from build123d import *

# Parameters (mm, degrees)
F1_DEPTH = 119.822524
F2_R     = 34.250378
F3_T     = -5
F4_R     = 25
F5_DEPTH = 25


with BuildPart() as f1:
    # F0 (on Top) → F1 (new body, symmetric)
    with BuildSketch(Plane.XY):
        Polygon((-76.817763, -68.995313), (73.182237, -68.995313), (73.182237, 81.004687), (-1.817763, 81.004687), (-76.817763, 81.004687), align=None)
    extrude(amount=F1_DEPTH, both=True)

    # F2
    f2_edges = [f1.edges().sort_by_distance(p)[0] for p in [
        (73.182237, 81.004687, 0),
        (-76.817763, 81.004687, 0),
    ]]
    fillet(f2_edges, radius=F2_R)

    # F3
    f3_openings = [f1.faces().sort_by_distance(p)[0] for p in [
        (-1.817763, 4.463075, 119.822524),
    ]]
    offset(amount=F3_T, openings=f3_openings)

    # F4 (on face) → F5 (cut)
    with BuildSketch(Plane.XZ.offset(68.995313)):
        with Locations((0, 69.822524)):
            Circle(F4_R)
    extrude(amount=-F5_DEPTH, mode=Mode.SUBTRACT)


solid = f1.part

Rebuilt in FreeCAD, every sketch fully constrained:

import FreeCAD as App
import Part
import Sketcher
Q = App.Units.Quantity


def edges_at(feature, points):
    """Names of the edges that pass closest to the given points."""
    edges = feature.Shape.Edges
    near = lambda p: min(range(len(edges)), key=lambda i: edges[i].distToShape(Part.Vertex(*p))[0])
    return sorted({f"Edge{near(p) + 1}" for p in points})


def faces_at(feature, points):
    """Names of the faces that lie closest to the given points."""
    faces = feature.Shape.Faces
    near = lambda p: min(range(len(faces)), key=lambda i: faces[i].distToShape(Part.Vertex(*p))[0])
    return sorted({f"Face{near(p) + 1}" for p in points})

doc = App.newDocument("Part")
body = doc.addObject("PartDesign::Body", "Body")

# Sketch on XY plane
sketch1 = doc.addObject("Sketcher::SketchObject", "Sketch")
body.addObject(sketch1)
sketch1.AttachmentSupport = (doc.XY_Plane, [""])
sketch1.MapMode = "FlatFace"
sketch1.addGeometry(Part.LineSegment(App.Vector(-77, -69, 0), App.Vector(73, -69, 0)), False)
sketch1.addGeometry(Part.LineSegment(App.Vector(73, -69, 0), App.Vector(73, 81, 0)), False)
sketch1.addGeometry(Part.LineSegment(App.Vector(73, 81, 0), App.Vector(-77, 81, 0)), False)
sketch1.addGeometry(Part.LineSegment(App.Vector(-77, 81, 0), App.Vector(-77, -69, 0)), False)
sketch1.addConstraint(Sketcher.Constraint("Coincident", 0, 2, 1, 1))
sketch1.addConstraint(Sketcher.Constraint("Coincident", 1, 2, 2, 1))
sketch1.addConstraint(Sketcher.Constraint("Coincident", 2, 2, 3, 1))
sketch1.addConstraint(Sketcher.Constraint("Coincident", 3, 2, 0, 1))
sketch1.addConstraint(Sketcher.Constraint("Horizontal", 0))
sketch1.addConstraint(Sketcher.Constraint("Vertical", 1))
sketch1.addConstraint(Sketcher.Constraint("Horizontal", 2))
sketch1.addConstraint(Sketcher.Constraint("Vertical", 3))
sketch1.addConstraint(Sketcher.Constraint("Equal", 2, 1))
sketch1.addConstraint(Sketcher.Constraint("DistanceX", 0, 1, 0, 2, Q("150 mm")))
sketch1.addConstraint(Sketcher.Constraint("DistanceX", -1, 1, 0, 2, Q("73.182237 mm")))
sketch1.addConstraint(Sketcher.Constraint("DistanceY", 0, 2, -1, 1, Q("68.995313 mm")))
pad1 = doc.addObject("PartDesign::Pad", "Pad")
body.addObject(pad1)
pad1.Profile = sketch1
pad1.Length = 239.645048
pad1.Midplane = True
doc.recompute()

fillet = doc.addObject("PartDesign::Fillet", "Fillet")
body.addObject(fillet)
fillet.Base = (pad1, edges_at(pad1, [(73.182, 81.005, 0), (-76.818, 81.005, 0)]))
fillet.Radius = 34.250378
doc.recompute()

thickness = doc.addObject("PartDesign::Thickness", "Thickness")
body.addObject(thickness)
thickness.Base = (fillet, faces_at(fillet, [(-1.818, 6.005, 119.823)]))
thickness.Value = 5
thickness.Reversed = True
thickness.Join = "Arc"

# Sketch on XZ plane
sketch2 = doc.addObject("Sketcher::SketchObject", "Sketch001")
body.addObject(sketch2)
sketch2.AttachmentSupport = (doc.XZ_Plane, [""])
sketch2.MapMode = "FlatFace"
sketch2.AttachmentOffset = App.Placement(App.Vector(0, 0, 68.995313), App.Rotation())
sketch2.addGeometry(Part.Circle(App.Vector(0, 70, 0), App.Vector(0, 0, 1), 25), False)
sketch2.addConstraint(Sketcher.Constraint("PointOnObject", 0, 3, -2))
sketch2.addConstraint(Sketcher.Constraint("Diameter", 0, Q("50 mm")))
sketch2.addConstraint(Sketcher.Constraint("DistanceY", -1, 1, 0, 3, Q("69.822524 mm")))
pocket1 = doc.addObject("PartDesign::Pocket", "Pocket")
body.addObject(pocket1)
pocket1.Profile = sketch2
pocket1.Length = 25

doc.recompute()
